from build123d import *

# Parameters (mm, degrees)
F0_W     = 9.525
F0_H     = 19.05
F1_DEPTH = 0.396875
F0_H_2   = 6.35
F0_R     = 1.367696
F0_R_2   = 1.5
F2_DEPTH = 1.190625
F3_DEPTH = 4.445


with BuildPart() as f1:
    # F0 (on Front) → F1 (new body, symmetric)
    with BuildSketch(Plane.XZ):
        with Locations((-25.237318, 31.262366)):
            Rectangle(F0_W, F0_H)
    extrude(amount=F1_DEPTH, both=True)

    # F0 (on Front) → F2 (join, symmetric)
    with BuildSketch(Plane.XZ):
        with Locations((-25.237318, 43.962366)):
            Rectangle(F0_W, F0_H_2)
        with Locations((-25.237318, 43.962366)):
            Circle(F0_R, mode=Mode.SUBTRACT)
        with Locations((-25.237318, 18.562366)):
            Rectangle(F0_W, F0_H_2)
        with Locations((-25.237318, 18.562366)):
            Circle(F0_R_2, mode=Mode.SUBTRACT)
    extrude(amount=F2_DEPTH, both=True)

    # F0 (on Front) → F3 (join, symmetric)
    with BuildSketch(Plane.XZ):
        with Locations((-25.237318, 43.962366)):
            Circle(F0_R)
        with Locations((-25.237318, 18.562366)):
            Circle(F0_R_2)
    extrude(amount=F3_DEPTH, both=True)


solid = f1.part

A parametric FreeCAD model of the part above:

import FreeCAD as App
import Part
import Sketcher
from FreeCAD import Vector
Q = App.Units.Quantity


def add_polygon(sketch, points):
    """Adds a closed chain of lines whose ends are joined by coincident constraints."""
    first, n = sketch.GeometryCount, len(points)
    for a, b in zip(points, points[1:] + points[:1]):
        sketch.addGeometry(Part.LineSegment(App.Vector(*a, 0), App.Vector(*b, 0)), False)
    for i in range(n):
        sketch.addConstraint(Sketcher.Constraint("Coincident", first + i, 2, first + (i + 1) % n, 1))

doc = App.newDocument("Part")
body = doc.addObject("PartDesign::Body", "Body")

# Sketch on XZ plane
sketch1 = doc.addObject("Sketcher::SketchObject", "Sketch")
body.addObject(sketch1)
sketch1.AttachmentSupport = (doc.XZ_Plane, [""])
sketch1.MapMode = "FlatFace"
add_polygon(sketch1, [(-30, 41), (-30, 22), (-20, 22), (-20, 41)])  # lines 0-3
sketch1.addConstraint([
    Sketcher.Constraint("Vertical", 0),
    Sketcher.Constraint("Horizontal", 1),
    Sketcher.Constraint("Vertical", 2),
    Sketcher.Constraint("Horizontal", 3),
    Sketcher.Constraint("DistanceY", 0, 2, 0, 1, Q("0.75 in")),
    Sketcher.Constraint("DistanceX", 1, 1, 1, 2, Q("0.375 in")),
    Sketcher.Constraint("DistanceX", 0, 2, -1, 1, 29.999818),
    Sketcher.Constraint("DistanceY", -1, 1, 0, 2, 21.737366),
])
pad1 = doc.addObject("PartDesign::Pad", "Pad")
body.addObject(pad1)
pad1.Profile = sketch1
pad1.Length = Q("0.03125 in")
pad1.Midplane = True

# Sketch on XZ plane
sketch2 = doc.addObject("Sketcher::SketchObject", "Sketch001")
body.addObject(sketch2)
sketch2.AttachmentSupport = (doc.XZ_Plane, [""])
sketch2.MapMode = "FlatFace"
add_polygon(sketch2, [(-30, 47.1), (-30, 40.8), (-20.5, 40.8), (-20.5, 47.1)])  # lines 0-3
sketch2.addGeometry(Part.Circle(Vector(-25.2, 44, 0), Vector(0, 0, 1), 1.4), False)  # 4
add_polygon(sketch2, [(-30, 21.7), (-30, 15.4), (-20.5, 15.4), (-20.5, 21.7)])  # lines 5-8
sketch2.addGeometry(Part.Circle(Vector(-25.2, 18.6, 0), Vector(0, 0, 1), 1.5), False)  # 9
sketch2.addConstraint([
    Sketcher.Constraint("Vertical", 0),
    Sketcher.Constraint("Horizontal", 1),
    Sketcher.Constraint("Vertical", 2),
    Sketcher.Constraint("Horizontal", 3),
    Sketcher.Constraint("Vertical", 5),
    Sketcher.Constraint("Horizontal", 6),
    Sketcher.Constraint("Vertical", 7),
    Sketcher.Constraint("Horizontal", 8),
    Sketcher.Constraint("Vertical", 4, 3, 9, 3),
    Sketcher.Constraint("Vertical", 3, 2, 5, 2),
    Sketcher.Constraint("Vertical", 2, 2, 6, 2),
    Sketcher.Constraint("Equal", 2, 5),
    Sketcher.Constraint("DistanceY", 9, 3, 4, 3, Q("1 in")),
    Sketcher.Constraint("DistanceY", 5, 2, 0, 2, Q("1 in")),
    Sketcher.Constraint("DistanceY", 0, 2, 0, 1, Q("0.25 in")),
    Sketcher.Constraint("Diameter", 9, 3.0),
    Sketcher.Constraint("DistanceX", 1, 1, 1, 2, Q("0.375 in")),
    Sketcher.Constraint("Diameter", 4, 2.735392),
    Sketcher.Constraint("DistanceX", 0, 2, 4, 3, Q("0.1875 in")),
    Sketcher.Constraint("DistanceY", 0, 2, 4, 3, Q("0.125 in")),
    Sketcher.Constraint("DistanceX", 0, 2, -1, 1, 29.999818),
    Sketcher.Constraint("DistanceY", -1, 1, 4, 3, 43.962366),
])
pad2 = doc.addObject("PartDesign::Pad", "Pad001")
body.addObject(pad2)
pad2.Profile = sketch2
pad2.Length = Q("0.09375 in")
pad2.Midplane = True

# Sketch on XZ plane
sketch3 = doc.addObject("Sketcher::SketchObject", "Sketch002")
body.addObject(sketch3)
sketch3.AttachmentSupport = (doc.XZ_Plane, [""])
sketch3.MapMode = "FlatFace"
sketch3.addGeometry([
    Part.Circle(Vector(-25.2, 44, 0), Vector(0, 0, 1), 1.4),
    Part.Circle(Vector(-25.2, 18.6, 0), Vector(0, 0, 1), 1.5),
], False)
sketch3.addConstraint([
    Sketcher.Constraint("Vertical", 0, 3, 1, 3),
    Sketcher.Constraint("DistanceY", 1, 3, 0, 3, Q("1 in")),
    Sketcher.Constraint("Diameter", 1, 3.0),
    Sketcher.Constraint("Diameter", 0, 2.735392),
    Sketcher.Constraint("DistanceX", 0, 3, -1, 1, 25.237318),
    Sketcher.Constraint("DistanceY", -1, 1, 0, 3, 43.962366),
])
pad3 = doc.addObject("PartDesign::Pad", "Pad002")
body.addObject(pad3)
pad3.Profile = sketch3
pad3.Length = Q("0.35 in")
pad3.Midplane = True

doc.recompute()
